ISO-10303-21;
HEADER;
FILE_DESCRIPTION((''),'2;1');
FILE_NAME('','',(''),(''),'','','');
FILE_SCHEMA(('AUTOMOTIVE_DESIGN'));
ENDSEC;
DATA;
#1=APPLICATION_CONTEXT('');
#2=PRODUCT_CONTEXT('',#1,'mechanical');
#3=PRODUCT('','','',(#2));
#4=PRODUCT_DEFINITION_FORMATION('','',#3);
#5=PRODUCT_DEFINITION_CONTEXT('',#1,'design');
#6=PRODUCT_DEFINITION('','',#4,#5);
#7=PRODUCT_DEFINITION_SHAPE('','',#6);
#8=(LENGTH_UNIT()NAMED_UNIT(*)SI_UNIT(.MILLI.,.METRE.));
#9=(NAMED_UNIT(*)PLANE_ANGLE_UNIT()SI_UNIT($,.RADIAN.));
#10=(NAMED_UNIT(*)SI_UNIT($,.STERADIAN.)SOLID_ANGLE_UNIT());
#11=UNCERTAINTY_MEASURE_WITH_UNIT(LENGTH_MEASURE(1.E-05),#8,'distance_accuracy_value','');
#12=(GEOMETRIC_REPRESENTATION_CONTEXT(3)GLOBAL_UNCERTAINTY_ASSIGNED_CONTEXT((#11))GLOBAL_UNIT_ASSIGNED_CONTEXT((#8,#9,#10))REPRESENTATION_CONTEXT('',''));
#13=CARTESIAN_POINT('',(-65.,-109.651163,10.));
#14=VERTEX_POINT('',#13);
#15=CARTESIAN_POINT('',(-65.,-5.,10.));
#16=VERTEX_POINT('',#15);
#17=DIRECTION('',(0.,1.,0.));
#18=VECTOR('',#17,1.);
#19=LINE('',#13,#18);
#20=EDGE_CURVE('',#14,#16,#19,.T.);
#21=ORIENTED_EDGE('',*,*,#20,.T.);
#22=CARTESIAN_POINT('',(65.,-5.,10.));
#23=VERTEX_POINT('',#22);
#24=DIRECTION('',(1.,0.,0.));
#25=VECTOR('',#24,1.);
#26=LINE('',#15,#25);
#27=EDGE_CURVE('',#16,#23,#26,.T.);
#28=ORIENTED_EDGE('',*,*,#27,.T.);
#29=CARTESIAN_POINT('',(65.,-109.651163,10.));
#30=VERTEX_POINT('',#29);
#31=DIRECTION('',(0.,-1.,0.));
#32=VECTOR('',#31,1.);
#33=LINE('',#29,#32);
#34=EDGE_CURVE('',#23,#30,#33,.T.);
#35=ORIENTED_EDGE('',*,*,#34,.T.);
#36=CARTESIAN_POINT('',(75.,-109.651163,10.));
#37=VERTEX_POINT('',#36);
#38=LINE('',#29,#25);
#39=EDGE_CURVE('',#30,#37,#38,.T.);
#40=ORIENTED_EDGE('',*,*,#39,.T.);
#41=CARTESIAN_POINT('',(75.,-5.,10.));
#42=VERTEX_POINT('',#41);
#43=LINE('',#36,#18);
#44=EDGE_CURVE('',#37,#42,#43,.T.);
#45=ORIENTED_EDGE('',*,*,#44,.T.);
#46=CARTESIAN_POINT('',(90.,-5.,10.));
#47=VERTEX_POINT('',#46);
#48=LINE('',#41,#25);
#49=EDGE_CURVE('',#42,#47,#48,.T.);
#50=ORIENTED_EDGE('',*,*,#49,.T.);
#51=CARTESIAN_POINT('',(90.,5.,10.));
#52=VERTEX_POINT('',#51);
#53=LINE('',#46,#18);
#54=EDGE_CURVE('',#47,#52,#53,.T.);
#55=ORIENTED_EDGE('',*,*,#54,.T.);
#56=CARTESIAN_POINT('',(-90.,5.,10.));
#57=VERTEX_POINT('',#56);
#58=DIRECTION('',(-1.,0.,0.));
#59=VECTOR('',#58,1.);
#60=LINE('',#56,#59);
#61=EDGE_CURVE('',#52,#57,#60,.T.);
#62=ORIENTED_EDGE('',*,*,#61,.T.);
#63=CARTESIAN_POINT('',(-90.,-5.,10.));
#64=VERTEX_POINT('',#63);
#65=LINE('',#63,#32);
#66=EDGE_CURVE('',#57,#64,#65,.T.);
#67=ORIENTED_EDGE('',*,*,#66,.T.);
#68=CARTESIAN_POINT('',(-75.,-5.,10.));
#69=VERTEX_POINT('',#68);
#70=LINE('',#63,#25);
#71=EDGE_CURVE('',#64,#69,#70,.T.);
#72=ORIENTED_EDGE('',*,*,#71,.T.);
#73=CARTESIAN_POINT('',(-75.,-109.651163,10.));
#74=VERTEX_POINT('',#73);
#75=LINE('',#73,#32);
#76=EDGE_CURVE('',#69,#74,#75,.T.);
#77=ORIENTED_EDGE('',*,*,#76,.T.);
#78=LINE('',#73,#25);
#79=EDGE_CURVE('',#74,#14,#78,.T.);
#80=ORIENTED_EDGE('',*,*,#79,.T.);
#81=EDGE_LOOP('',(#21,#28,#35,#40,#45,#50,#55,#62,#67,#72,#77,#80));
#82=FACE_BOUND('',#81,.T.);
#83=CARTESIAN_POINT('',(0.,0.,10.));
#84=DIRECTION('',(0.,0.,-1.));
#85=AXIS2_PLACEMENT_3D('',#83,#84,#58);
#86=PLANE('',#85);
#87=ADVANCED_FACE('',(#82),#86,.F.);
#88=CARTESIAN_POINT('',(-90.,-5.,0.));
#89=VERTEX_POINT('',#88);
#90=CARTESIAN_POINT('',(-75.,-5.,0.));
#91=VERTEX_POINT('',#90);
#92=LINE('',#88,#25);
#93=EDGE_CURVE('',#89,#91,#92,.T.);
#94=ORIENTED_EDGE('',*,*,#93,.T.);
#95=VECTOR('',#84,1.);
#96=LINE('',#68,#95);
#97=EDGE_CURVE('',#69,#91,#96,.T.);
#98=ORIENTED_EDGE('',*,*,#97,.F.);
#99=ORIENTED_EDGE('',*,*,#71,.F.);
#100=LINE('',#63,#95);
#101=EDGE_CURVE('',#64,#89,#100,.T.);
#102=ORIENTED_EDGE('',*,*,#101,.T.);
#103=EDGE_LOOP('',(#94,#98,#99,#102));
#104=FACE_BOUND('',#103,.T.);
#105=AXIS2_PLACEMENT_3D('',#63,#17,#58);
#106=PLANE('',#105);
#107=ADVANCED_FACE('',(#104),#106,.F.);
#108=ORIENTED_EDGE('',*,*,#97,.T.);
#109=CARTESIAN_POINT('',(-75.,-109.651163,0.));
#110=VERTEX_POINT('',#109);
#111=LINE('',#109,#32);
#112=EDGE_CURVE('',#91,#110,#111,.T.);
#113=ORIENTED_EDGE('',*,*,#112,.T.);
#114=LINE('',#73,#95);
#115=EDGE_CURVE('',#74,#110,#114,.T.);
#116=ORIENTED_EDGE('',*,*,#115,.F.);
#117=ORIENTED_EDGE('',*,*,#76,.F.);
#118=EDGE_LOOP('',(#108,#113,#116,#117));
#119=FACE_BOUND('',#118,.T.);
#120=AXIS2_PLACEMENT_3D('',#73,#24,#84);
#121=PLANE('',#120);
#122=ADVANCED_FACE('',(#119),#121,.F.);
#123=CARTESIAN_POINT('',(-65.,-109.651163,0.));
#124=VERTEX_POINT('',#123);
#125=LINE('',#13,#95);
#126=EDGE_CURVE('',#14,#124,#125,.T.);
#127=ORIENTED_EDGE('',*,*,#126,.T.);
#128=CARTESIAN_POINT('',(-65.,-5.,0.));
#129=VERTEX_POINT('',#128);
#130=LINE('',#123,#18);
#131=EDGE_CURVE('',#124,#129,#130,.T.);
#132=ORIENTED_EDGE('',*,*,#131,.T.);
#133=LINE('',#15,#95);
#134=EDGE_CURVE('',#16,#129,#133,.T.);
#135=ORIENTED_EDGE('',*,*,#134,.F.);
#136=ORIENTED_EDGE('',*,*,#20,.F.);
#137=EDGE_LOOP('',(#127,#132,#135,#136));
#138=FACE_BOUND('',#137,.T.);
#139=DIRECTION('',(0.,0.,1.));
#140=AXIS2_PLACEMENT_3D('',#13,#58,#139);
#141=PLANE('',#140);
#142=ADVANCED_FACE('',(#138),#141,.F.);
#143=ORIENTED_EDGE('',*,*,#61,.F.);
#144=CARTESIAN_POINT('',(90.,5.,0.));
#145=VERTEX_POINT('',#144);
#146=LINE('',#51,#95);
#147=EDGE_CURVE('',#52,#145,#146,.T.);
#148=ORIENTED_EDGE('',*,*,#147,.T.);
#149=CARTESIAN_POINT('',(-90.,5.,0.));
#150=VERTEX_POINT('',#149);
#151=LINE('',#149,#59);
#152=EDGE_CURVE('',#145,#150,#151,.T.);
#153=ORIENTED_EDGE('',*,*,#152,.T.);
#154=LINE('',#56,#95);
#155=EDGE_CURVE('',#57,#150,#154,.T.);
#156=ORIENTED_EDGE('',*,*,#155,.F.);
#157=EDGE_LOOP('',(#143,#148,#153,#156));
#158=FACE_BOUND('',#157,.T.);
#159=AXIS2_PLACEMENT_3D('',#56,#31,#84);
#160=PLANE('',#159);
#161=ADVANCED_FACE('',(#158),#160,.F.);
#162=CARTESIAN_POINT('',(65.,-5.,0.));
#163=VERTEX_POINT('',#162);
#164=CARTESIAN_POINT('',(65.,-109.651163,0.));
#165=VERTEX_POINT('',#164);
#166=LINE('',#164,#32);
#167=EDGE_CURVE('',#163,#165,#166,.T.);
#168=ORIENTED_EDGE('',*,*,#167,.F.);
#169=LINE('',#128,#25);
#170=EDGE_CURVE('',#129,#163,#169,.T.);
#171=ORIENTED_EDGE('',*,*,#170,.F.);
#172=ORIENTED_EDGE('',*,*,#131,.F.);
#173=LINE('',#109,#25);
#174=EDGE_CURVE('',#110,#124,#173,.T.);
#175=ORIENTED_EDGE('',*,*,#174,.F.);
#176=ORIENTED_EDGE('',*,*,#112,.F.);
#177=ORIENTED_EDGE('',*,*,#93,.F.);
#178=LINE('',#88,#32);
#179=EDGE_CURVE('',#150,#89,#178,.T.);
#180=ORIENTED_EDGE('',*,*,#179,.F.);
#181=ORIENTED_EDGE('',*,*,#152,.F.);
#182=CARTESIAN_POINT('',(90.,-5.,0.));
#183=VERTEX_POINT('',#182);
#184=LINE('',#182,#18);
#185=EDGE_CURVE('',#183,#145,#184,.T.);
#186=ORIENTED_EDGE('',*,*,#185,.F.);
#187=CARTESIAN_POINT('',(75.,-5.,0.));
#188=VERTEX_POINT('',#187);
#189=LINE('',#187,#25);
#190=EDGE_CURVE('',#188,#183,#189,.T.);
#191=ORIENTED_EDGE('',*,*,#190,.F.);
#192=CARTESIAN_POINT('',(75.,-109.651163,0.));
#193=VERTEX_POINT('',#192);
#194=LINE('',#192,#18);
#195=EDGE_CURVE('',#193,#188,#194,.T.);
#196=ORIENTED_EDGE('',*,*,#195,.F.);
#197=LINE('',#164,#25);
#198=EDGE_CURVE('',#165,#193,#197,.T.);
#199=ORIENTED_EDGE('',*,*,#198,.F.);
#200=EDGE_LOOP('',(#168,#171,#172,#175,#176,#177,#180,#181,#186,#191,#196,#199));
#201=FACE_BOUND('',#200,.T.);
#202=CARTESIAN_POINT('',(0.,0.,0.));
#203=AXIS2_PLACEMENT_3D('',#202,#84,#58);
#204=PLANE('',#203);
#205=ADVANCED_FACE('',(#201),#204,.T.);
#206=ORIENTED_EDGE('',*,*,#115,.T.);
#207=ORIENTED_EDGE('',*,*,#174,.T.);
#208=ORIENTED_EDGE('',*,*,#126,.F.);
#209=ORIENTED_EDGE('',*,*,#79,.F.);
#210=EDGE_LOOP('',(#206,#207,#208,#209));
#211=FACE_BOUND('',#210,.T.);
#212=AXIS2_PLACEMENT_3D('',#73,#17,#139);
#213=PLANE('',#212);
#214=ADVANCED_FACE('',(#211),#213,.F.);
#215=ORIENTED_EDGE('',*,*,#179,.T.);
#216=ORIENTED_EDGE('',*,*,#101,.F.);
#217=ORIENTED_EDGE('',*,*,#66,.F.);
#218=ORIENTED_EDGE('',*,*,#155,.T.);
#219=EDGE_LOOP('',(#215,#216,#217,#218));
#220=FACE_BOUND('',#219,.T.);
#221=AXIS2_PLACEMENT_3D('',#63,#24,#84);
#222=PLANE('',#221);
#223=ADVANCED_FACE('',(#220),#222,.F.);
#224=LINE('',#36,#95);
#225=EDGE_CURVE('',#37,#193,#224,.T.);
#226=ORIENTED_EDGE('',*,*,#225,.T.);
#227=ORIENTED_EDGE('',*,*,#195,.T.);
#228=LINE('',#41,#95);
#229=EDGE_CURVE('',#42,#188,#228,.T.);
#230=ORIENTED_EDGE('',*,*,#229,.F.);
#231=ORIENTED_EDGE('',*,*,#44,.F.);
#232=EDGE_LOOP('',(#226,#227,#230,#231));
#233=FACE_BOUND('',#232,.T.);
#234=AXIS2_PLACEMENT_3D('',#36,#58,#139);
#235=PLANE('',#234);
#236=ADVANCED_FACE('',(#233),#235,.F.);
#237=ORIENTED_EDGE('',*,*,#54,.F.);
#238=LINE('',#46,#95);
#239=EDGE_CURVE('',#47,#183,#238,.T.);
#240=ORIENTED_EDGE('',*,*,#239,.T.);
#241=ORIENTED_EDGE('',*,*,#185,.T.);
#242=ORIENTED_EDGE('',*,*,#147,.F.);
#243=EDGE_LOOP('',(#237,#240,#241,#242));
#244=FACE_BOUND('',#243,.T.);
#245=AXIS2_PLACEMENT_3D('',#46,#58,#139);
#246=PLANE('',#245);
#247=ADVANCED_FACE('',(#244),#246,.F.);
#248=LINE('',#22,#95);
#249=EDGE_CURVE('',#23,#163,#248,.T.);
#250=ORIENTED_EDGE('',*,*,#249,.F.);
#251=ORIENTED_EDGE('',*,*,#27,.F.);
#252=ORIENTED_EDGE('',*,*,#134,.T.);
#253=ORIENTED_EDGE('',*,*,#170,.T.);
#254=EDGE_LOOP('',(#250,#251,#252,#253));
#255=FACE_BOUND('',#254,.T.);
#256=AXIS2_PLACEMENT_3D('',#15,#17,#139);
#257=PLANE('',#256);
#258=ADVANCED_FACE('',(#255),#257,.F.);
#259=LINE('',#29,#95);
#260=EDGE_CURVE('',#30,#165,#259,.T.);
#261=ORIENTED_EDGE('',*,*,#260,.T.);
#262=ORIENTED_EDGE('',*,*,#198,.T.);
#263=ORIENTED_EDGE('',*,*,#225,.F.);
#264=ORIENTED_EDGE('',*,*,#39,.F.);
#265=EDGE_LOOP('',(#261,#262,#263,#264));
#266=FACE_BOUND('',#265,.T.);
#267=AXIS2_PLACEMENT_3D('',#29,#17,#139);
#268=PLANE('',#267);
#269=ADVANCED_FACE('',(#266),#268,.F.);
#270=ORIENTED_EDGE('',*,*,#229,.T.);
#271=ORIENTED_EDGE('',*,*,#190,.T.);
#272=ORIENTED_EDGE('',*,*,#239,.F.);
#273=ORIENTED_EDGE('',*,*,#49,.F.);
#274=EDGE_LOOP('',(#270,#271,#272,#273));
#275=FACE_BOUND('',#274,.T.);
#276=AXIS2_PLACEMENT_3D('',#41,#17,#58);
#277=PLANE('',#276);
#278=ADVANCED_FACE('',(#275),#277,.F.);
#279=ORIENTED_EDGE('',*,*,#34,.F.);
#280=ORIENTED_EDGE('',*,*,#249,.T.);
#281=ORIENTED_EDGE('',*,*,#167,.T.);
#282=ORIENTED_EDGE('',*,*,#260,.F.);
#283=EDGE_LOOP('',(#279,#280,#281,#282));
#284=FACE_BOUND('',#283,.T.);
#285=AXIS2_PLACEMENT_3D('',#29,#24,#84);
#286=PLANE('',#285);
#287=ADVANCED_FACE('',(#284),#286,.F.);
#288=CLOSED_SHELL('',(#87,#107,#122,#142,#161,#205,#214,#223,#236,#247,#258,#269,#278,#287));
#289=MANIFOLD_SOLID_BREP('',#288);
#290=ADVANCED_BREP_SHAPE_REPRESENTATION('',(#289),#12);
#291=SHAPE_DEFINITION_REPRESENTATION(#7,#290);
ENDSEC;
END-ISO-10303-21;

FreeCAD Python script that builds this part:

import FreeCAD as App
import Part
import Sketcher
from FreeCAD import Vector


def add_polygon(sketch, points):
    """Adds a closed chain of lines whose ends are joined by coincident constraints."""
    first, n = sketch.GeometryCount, len(points)
    for a, b in zip(points, points[1:] + points[:1]):
        sketch.addGeometry(Part.LineSegment(App.Vector(*a, 0), App.Vector(*b, 0)), False)
    for i in range(n):
        sketch.addConstraint(Sketcher.Constraint("Coincident", first + i, 2, first + (i + 1) % n, 1))

doc = App.newDocument("Part")
body = doc.addObject("PartDesign::Body", "Body")

# Sketch on XY plane
sketch1 = doc.addObject("Sketcher::SketchObject", "Sketch")
body.addObject(sketch1)
sketch1.AttachmentSupport = (doc.XY_Plane, [""])
sketch1.MapMode = "FlatFace"
add_polygon(sketch1, [(-65, -5), (65, -5), (65, -110), (75, -110), (75, -5), (90, -5), (90, 5), (-90, 5), (-90, -5), (-75, -5), (-75, -110), (-65, -110)])  # lines 0-11
sketch1.addConstraint(Sketcher.Constraint("Horizontal", 0))
sketch1.addConstraint(Sketcher.Constraint("Vertical", 1))
sketch1.addConstraint(Sketcher.Constraint("Horizontal", 2))
sketch1.addConstraint(Sketcher.Constraint("Vertical", 3))
sketch1.addConstraint(Sketcher.Constraint("Horizontal", 4))
sketch1.addConstraint(Sketcher.Constraint("Vertical", 5))
sketch1.addConstraint(Sketcher.Constraint("Horizontal", 6))
sketch1.addConstraint(Sketcher.Constraint("Vertical", 7))
sketch1.addConstraint(Sketcher.Constraint("Horizontal", 8))
sketch1.addConstraint(Sketcher.Constraint("Vertical", 9))
sketch1.addConstraint(Sketcher.Constraint("Horizontal", 10))
sketch1.addConstraint(Sketcher.Constraint("Vertical", 11))
sketch1.addConstraint(Sketcher.Constraint("Symmetric", 4, 2, 6, 2, -1, 1))
sketch1.addConstraint(Sketcher.Constraint("Symmetric", 3, 2, 8, 2, -2))
sketch1.addConstraint(Sketcher.Constraint("Symmetric", 1, 2, 10, 2, -2))
sketch1.addConstraint(Sketcher.Constraint("Horizontal", 0, 2, 3, 2))
sketch1.addConstraint(Sketcher.Constraint("Equal", 10, 5))
sketch1.addConstraint(Sketcher.Constraint("DistanceX", 0, 1, 0, 2, 130.0))
sketch1.addConstraint(Sketcher.Constraint("DistanceX", 2, 1, 2, 2, 10.0))
sketch1.addConstraint(Sketcher.Constraint("DistanceX", 4, 1, 4, 2, 15.0))
sketch1.addConstraint(Sketcher.Constraint("DistanceY", 1, 2, 1, 1, 104.651163))
pad1 = doc.addObject("PartDesign::Pad", "Pad")
body.addObject(pad1)
pad1.Profile = sketch1
pad1.Length = 10

doc.recompute()
